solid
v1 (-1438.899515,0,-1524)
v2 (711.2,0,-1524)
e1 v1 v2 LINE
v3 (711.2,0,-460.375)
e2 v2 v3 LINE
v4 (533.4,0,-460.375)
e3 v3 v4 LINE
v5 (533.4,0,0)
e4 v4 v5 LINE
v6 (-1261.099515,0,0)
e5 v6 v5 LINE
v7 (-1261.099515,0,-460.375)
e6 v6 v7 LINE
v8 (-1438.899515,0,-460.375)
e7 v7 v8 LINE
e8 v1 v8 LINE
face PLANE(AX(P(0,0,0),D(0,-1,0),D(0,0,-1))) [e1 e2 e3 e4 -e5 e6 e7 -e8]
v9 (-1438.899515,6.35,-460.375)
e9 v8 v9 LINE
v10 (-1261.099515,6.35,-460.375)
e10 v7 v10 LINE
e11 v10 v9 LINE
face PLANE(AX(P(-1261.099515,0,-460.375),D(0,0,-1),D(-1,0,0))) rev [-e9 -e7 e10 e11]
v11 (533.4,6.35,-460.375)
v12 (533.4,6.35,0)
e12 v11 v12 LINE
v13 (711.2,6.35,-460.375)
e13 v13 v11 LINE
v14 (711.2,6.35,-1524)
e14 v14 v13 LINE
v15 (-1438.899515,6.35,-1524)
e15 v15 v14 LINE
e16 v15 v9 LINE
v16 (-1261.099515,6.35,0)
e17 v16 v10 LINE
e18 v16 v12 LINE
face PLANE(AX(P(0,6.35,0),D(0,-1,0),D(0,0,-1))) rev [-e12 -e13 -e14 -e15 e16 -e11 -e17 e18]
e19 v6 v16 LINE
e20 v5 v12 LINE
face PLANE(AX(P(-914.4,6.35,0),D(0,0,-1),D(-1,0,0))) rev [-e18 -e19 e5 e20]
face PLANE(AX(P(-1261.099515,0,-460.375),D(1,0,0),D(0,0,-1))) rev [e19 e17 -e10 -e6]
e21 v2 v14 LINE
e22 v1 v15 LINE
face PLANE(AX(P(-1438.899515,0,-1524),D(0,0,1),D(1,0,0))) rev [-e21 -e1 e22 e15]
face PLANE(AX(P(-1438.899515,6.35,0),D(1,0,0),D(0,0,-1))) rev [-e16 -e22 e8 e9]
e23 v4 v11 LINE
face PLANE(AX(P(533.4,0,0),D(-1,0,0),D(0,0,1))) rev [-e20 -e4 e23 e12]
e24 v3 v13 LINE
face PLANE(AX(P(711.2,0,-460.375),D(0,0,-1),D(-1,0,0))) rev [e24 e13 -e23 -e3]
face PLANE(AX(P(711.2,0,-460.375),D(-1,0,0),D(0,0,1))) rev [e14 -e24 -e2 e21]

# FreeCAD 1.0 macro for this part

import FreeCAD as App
import Part
import Sketcher

V = App.Vector
Q = App.Units.Quantity

doc = App.newDocument("Part")
body = doc.addObject("PartDesign::Body", "Body")

# Sketch on XZ plane
sketch1 = body.newObject("Sketcher::SketchObject", "Sketch")
sketch1.AttachmentSupport = (doc.getObject("XZ_Plane"), [""])
sketch1.MapMode = "FlatFace"
sketch1.addGeometry([
    Part.LineSegment(V(914, 0, 0), V(914, -3048, 0)),
    Part.LineSegment(V(914, -3048, 0), V(-1439, -3048, 0)),
    Part.LineSegment(V(-1439, -3048, 0), V(-1439, 0, 0)),
    Part.LineSegment(V(-1439, 0, 0), V(914, 0, 0)),
], False)
sketch1.addConstraint([
    Sketcher.Constraint("Coincident", 0, 2, 1, 1),
    Sketcher.Constraint("Coincident", 1, 2, 2, 1),
    Sketcher.Constraint("Coincident", 2, 2, 3, 1),
    Sketcher.Constraint("Coincident", 3, 2, 0, 1),
    Sketcher.Constraint("Vertical", 0),
    Sketcher.Constraint("Horizontal", 1),
    Sketcher.Constraint("Vertical", 2),
    Sketcher.Constraint("Horizontal", 3),
    Sketcher.Constraint("PointOnObject", 2, 2, -1),
    Sketcher.Constraint("DistanceY", 0, 2, 0, 1, Q("120 in")),
    Sketcher.Constraint("DistanceX", -1, 1, 0, 2, Q("36 in")),
    Sketcher.Constraint("DistanceX", 1, 2, 1, 1, Q("2353.299515 mm")),
])
pad1 = body.newObject("PartDesign::Pad", "Pad")
pad1.Profile = sketch1
pad1.Length = Q("0.25 in")
pad1.Reversed = True

# Sketch on XZ plane
sketch2 = body.newObject("Sketcher::SketchObject", "Sketch001")
sketch2.AttachmentSupport = (doc.getObject("XZ_Plane"), [""])
sketch2.MapMode = "FlatFace"
sketch2.AttachmentOffset = App.Placement(V(0, 0, -0.25 * 25.4), App.Rotation())
sketch2.addGeometry([
    Part.LineSegment(V(533, 0, 0), V(914, 0, 0)),  # 0
    Part.LineSegment(V(914, 0, 0), V(914, -3048, 0)),  # 1
    Part.LineSegment(V(914, -3048, 0), V(533, -3048, 0)),  # 2
    Part.LineSegment(V(533, -3048, 0), V(533, -2588, 0)),  # 3
    Part.LineSegment(V(533, -2588, 0), V(711, -2588, 0)),  # 4
    Part.LineSegment(V(711, -2588, 0), V(711, -460, 0)),  # 5
    Part.LineSegment(V(711, -460, 0), V(533, -460, 0)),  # 6
    Part.LineSegment(V(533, -460, 0), V(533, 0, 0)),  # 7
    Part.LineSegment(V(-1439, -460, 0), V(-1439, 0, 0)),  # 8
    Part.LineSegment(V(-1439, 0, 0), V(-1261, 0, 0)),  # 9
    Part.LineSegment(V(-1261, 0, 0), V(-1261, -460, 0)),  # 10
    Part.LineSegment(V(-1261, -460, 0), V(-1439, -460, 0)),  # 11
    Part.LineSegment(V(-1439, -3048, 0), V(-1439, -2588, 0)),  # 12
    Part.LineSegment(V(-1439, -2588, 0), V(-1261, -2588, 0)),  # 13
    Part.LineSegment(V(-1261, -2588, 0), V(-1261, -3048, 0)),  # 14
    Part.LineSegment(V(-1261, -3048, 0), V(-1439, -3048, 0)),  # 15
], False)
sketch2.addConstraint([
    Sketcher.Constraint("Coincident", 0, 2, 1, 1),
    Sketcher.Constraint("Coincident", 1, 2, 2, 1),
    Sketcher.Constraint("Coincident", 2, 2, 3, 1),
    Sketcher.Constraint("Coincident", 3, 2, 4, 1),
    Sketcher.Constraint("Coincident", 4, 2, 5, 1),
    Sketcher.Constraint("Coincident", 5, 2, 6, 1),
    Sketcher.Constraint("Coincident", 6, 2, 7, 1),
    Sketcher.Constraint("Coincident", 7, 2, 0, 1),
    Sketcher.Constraint("Coincident", 8, 2, 9, 1),
    Sketcher.Constraint("Coincident", 9, 2, 10, 1),
    Sketcher.Constraint("Coincident", 10, 2, 11, 1),
    Sketcher.Constraint("Coincident", 11, 2, 8, 1),
    Sketcher.Constraint("Coincident", 12, 2, 13, 1),
    Sketcher.Constraint("Coincident", 13, 2, 14, 1),
    Sketcher.Constraint("Coincident", 14, 2, 15, 1),
    Sketcher.Constraint("Coincident", 15, 2, 12, 1),
    Sketcher.Constraint("Horizontal", 0),
    Sketcher.Constraint("Vertical", 1),
    Sketcher.Constraint("Horizontal", 2),
    Sketcher.Constraint("Vertical", 3),
    Sketcher.Constraint("Horizontal", 4),
    Sketcher.Constraint("Vertical", 5),
    Sketcher.Constraint("Horizontal", 6),
    Sketcher.Constraint("Vertical", 7),
    Sketcher.Constraint("Vertical", 8),
    Sketcher.Constraint("Horizontal", 9),
    Sketcher.Constraint("Vertical", 10),
    Sketcher.Constraint("Horizontal", 11),
    Sketcher.Constraint("Vertical", 12),
    Sketcher.Constraint("Horizontal", 13),
    Sketcher.Constraint("Vertical", 14),
    Sketcher.Constraint("Horizontal", 15),
    Sketcher.Constraint("PointOnObject", 0, 2, -1),
    Sketcher.Constraint("PointOnObject", 8, 2, -1),
    Sketcher.Constraint("Horizontal", 6, 2, 10, 2),
    Sketcher.Constraint("Horizontal", 4, 2, 12, 2),
    Sketcher.Constraint("Horizontal", 2, 2, 14, 2),
    Sketcher.Constraint("Vertical", 3, 2, 6, 2),
    Sketcher.Constraint("Vertical", 11, 2, 12, 2),
    Sketcher.Constraint("Vertical", 10, 2, 13, 2),
    Sketcher.Constraint("Equal", 6, 9),
    Sketcher.Constraint("Equal", 3, 7),
    Sketcher.Constraint("DistanceX", 0, 1, 0, 2, Q("15 in")),
    Sketcher.Constraint("DistanceX", 4, 1, 4, 2, Q("7 in")),
    Sketcher.Constraint("DistanceY", 1, 2, 1, 1, Q("120 in")),
    Sketcher.Constraint("DistanceX", -1, 1, 0, 2, Q("36 in")),
    Sketcher.Constraint("DistanceY", 5, 1, 5, 2, Q("83.75 in")),
    Sketcher.Constraint("DistanceX", 8, 2, -1, 1, Q("1438.899515 mm")),
])
pocket1 = body.newObject("PartDesign::Pocket", "Pocket")
pocket1.Profile = sketch2
pocket1.Type = "ThroughAll"
pocket1.Reversed = True

# Sketch on XZ plane
sketch3 = body.newObject("Sketcher::SketchObject", "Sketch002")
sketch3.AttachmentSupport = (doc.getObject("XZ_Plane"), [""])
sketch3.MapMode = "FlatFace"
sketch3.AttachmentOffset = App.Placement(V(0, 0, -0.25 * 25.4), App.Rotation())
sketch3.addGeometry([
    Part.LineSegment(V(-1439, -3048, 0), V(-1439, -1524, 0)),
    Part.LineSegment(V(-1439, -1524, 0), V(711, -1524, 0)),
    Part.LineSegment(V(711, -1524, 0), V(711, -3048, 0)),
    Part.LineSegment(V(711, -3048, 0), V(-1439, -3048, 0)),
], False)
sketch3.addConstraint([
    Sketcher.Constraint("Coincident", 0, 2, 1, 1),
    Sketcher.Constraint("Coincident", 1, 2, 2, 1),
    Sketcher.Constraint("Coincident", 2, 2, 3, 1),
    Sketcher.Constraint("Coincident", 3, 2, 0, 1),
    Sketcher.Constraint("Vertical", 0),
    Sketcher.Constraint("Horizontal", 1),
    Sketcher.Constraint("Vertical", 2),
    Sketcher.Constraint("Horizontal", 3),
    Sketcher.Constraint("DistanceY", 0, 1, 0, 2, Q("60 in")),
    Sketcher.Constraint("DistanceY", 0, 2, -1, 1, Q("60 in")),
    Sketcher.Constraint("DistanceX", -1, 1, 1, 2, Q("28 in")),
    Sketcher.Constraint("DistanceX", 1, 1, 1, 2, Q("2150.099515 mm")),
])
pocket2 = body.newObject("PartDesign::Pocket", "Pocket001")
pocket2.Profile = sketch3
pocket2.Type = "ThroughAll"
pocket2.Reversed = True

doc.recompute()
